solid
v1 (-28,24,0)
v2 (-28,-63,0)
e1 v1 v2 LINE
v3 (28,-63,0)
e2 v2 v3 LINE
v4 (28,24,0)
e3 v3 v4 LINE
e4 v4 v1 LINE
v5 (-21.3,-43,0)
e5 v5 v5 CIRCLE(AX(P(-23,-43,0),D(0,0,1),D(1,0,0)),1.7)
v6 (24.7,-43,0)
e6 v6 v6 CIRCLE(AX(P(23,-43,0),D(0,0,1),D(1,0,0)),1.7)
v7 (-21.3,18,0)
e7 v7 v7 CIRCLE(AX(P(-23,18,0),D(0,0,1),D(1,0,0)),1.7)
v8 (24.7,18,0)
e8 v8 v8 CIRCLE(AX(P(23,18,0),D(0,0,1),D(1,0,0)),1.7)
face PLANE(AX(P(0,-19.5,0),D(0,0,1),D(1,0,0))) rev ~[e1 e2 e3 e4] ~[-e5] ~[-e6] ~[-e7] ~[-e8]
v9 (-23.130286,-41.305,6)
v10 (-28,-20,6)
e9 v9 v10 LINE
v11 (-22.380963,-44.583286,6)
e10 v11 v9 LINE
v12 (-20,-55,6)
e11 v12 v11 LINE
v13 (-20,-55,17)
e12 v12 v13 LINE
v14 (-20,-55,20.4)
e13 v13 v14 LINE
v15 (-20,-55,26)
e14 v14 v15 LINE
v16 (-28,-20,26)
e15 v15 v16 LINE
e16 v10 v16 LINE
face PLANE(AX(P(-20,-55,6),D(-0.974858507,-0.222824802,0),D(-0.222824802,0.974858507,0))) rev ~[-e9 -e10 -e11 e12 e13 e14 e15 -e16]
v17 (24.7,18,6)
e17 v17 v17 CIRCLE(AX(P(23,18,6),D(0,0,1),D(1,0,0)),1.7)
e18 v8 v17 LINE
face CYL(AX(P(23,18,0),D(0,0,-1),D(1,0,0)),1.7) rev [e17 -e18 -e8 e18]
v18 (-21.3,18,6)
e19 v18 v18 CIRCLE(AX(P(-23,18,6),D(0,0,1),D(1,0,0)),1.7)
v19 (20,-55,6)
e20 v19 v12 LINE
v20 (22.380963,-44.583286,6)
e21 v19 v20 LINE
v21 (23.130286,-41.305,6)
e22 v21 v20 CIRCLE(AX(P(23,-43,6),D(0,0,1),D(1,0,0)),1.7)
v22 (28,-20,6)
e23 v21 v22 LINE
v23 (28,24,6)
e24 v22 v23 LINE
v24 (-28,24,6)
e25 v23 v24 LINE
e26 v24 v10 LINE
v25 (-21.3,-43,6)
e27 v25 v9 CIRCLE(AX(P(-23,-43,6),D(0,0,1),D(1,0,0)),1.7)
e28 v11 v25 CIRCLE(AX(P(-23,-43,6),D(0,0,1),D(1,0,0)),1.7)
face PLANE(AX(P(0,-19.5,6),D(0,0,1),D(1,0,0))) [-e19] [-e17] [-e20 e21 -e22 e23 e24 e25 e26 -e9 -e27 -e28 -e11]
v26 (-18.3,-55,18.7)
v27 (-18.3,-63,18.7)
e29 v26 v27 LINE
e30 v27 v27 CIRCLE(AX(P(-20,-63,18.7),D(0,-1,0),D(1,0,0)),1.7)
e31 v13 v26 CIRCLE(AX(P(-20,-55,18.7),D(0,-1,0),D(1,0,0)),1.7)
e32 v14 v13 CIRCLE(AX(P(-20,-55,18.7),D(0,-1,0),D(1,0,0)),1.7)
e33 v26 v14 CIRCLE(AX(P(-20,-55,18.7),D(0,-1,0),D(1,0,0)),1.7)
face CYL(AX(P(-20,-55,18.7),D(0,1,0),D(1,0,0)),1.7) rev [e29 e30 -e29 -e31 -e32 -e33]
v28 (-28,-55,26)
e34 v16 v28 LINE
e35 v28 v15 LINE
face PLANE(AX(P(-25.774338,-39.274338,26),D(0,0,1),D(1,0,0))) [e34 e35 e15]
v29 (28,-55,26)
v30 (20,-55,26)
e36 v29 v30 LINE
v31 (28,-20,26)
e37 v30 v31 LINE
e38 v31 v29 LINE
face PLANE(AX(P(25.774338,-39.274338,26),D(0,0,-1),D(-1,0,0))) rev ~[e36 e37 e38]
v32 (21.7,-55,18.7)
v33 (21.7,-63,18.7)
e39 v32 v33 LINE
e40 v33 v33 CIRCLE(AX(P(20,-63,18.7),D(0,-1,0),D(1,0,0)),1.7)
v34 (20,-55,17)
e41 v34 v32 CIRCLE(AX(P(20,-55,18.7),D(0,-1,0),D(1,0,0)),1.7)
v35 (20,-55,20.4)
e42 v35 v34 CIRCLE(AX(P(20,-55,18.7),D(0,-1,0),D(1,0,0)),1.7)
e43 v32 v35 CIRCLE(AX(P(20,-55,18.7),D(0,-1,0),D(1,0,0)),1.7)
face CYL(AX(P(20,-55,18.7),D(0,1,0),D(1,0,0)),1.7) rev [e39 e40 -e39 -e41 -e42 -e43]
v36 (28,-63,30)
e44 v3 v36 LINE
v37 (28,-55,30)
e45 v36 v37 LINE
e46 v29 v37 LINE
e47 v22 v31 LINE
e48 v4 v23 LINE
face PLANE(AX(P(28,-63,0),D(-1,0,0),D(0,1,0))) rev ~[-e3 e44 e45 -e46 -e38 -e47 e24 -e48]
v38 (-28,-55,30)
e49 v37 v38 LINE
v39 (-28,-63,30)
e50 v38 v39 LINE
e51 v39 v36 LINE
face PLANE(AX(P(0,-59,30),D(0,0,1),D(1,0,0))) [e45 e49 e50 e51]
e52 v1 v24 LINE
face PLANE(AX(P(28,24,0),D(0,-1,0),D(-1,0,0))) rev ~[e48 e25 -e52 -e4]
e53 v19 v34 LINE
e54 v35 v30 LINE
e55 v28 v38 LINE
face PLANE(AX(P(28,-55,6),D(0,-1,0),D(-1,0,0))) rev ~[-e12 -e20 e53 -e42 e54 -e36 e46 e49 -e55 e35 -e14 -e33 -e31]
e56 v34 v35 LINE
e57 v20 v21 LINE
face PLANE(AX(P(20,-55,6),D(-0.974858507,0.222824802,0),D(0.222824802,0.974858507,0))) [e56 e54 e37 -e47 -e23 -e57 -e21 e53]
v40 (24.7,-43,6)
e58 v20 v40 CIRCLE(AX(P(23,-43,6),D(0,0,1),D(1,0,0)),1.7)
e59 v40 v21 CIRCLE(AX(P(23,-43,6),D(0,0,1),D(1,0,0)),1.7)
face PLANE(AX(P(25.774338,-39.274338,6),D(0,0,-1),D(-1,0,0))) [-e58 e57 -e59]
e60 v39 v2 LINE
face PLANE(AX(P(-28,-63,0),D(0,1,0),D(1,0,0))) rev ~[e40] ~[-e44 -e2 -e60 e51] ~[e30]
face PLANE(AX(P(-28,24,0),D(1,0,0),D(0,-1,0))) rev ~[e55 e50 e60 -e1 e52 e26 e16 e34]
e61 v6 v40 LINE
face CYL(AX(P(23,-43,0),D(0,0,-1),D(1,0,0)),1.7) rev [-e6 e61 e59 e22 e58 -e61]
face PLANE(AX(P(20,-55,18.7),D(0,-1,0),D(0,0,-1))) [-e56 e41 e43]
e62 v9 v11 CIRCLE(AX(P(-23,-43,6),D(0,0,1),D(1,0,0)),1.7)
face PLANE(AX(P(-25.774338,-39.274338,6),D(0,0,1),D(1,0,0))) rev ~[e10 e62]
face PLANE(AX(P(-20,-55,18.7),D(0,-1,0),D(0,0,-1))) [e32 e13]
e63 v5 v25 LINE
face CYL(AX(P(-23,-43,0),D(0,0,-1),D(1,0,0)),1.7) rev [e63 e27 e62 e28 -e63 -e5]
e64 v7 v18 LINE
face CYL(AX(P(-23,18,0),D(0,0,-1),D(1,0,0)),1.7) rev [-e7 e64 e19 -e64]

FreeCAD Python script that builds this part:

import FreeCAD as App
import Part
import Sketcher


def add_polygon(sketch, points):
    """Adds a closed chain of lines whose ends are joined by coincident constraints."""
    first, n = sketch.GeometryCount, len(points)
    for a, b in zip(points, points[1:] + points[:1]):
        sketch.addGeometry(Part.LineSegment(App.Vector(*a, 0), App.Vector(*b, 0)), False)
    for i in range(n):
        sketch.addConstraint(Sketcher.Constraint("Coincident", first + i, 2, first + (i + 1) % n, 1))

doc = App.newDocument("Part")
body = doc.addObject("PartDesign::Body", "Body")

# Sketch on XY plane
sketch1 = body.newObject("Sketcher::SketchObject", "Sketch")
sketch1.AttachmentSupport = (doc.getObject("XY_Plane"), [""])
sketch1.MapMode = "FlatFace"
add_polygon(sketch1, [(-28, 24), (-28, -63), (28, -63), (28, 24)])  # lines 0-3
sketch1.addGeometry(Part.Circle(App.Vector(-23, -43, 0), App.Vector(0, 0, 1), 1.7), False)  # 4
sketch1.addGeometry(Part.Circle(App.Vector(23, -43, 0), App.Vector(0, 0, 1), 1.7), False)  # 5
sketch1.addGeometry(Part.Circle(App.Vector(-23, 18, 0), App.Vector(0, 0, 1), 1.7), False)  # 6
sketch1.addGeometry(Part.Circle(App.Vector(23, 18, 0), App.Vector(0, 0, 1), 1.7), False)  # 7
sketch1.addConstraint([
    Sketcher.Constraint("Vertical", 0),
    Sketcher.Constraint("Horizontal", 1),
    Sketcher.Constraint("Vertical", 2),
    Sketcher.Constraint("Horizontal", 3),
    Sketcher.Constraint("Equal", 4, 5),
    Sketcher.Constraint("Equal", 5, 6),
    Sketcher.Constraint("Equal", 6, 7),
    Sketcher.Constraint("Symmetric", 4, 3, 5, 3, -2),
    Sketcher.Constraint("Symmetric", 6, 3, 7, 3, -2),
    Sketcher.Constraint("Vertical", 4, 3, 6, 3),
    Sketcher.Constraint("Diameter", 4, 3.4),
    Sketcher.Constraint("DistanceX", 1, 1, 1, 2, 56.0),
    Sketcher.Constraint("DistanceY", 0, 2, 0, 1, 87.0),
    Sketcher.Constraint("DistanceX", 4, 3, -1, 1, 23.0),
    Sketcher.Constraint("DistanceY", 4, 3, -1, 1, 43.0),
    Sketcher.Constraint("DistanceY", -1, 1, 6, 3, 18.0),
    Sketcher.Constraint("DistanceX", 0, 2, -1, 1, 28.0),
    Sketcher.Constraint("DistanceY", 0, 2, -1, 1, 63.0),
])
pad1 = body.newObject("PartDesign::Pad", "Pad")
pad1.Profile = sketch1
pad1.Length = 6

# Sketch on XY plane
sketch2 = body.newObject("Sketcher::SketchObject", "Sketch001")
sketch2.AttachmentSupport = (doc.getObject("XY_Plane"), [""])
sketch2.MapMode = "FlatFace"
sketch2.AttachmentOffset = App.Placement(App.Vector(0, 0, 6), App.Rotation())
add_polygon(sketch2, [(-28, -55), (-28, -63), (28, -63), (28, -55)])  # lines 0-3
sketch2.addConstraint([
    Sketcher.Constraint("Vertical", 0),
    Sketcher.Constraint("Horizontal", 1),
    Sketcher.Constraint("Vertical", 2),
    Sketcher.Constraint("Horizontal", 3),
    Sketcher.Constraint("DistanceX", 1, 1, 1, 2, 56.0),
    Sketcher.Constraint("DistanceY", 0, 2, 0, 1, 8.0),
    Sketcher.Constraint("DistanceX", 0, 2, -1, 1, 28.0),
    Sketcher.Constraint("DistanceY", 0, 2, -1, 1, 63.0),
])
pad2 = body.newObject("PartDesign::Pad", "Pad001")
pad2.Profile = sketch2
pad2.Length = 24

# Sketch on XY plane
sketch3 = body.newObject("Sketcher::SketchObject", "Sketch002")
sketch3.AttachmentSupport = (doc.getObject("XY_Plane"), [""])
sketch3.MapMode = "FlatFace"
sketch3.AttachmentOffset = App.Placement(App.Vector(0, 0, 6), App.Rotation())
add_polygon(sketch3, [(-28, -20), (-28, -55), (-20, -55)])  # lines 0-2
sketch3.addConstraint([
    Sketcher.Constraint("Vertical", 0),
    Sketcher.Constraint("Horizontal", 1),
    Sketcher.Constraint("DistanceX", 1, 1, 1, 2, 8.0),
    Sketcher.Constraint("DistanceY", 0, 2, 0, 1, 35.0),
    Sketcher.Constraint("DistanceX", 0, 2, -1, 1, 28.0),
    Sketcher.Constraint("DistanceY", 0, 2, -1, 1, 55.0),
])
pad3 = body.newObject("PartDesign::Pad", "Pad002")
pad3.Profile = sketch3
pad3.Length = 20

# Sketch on XY plane
sketch4 = body.newObject("Sketcher::SketchObject", "Sketch003")
sketch4.AttachmentSupport = (doc.getObject("XY_Plane"), [""])
sketch4.MapMode = "FlatFace"
sketch4.AttachmentOffset = App.Placement(App.Vector(0, 0, 6), App.Rotation())
add_polygon(sketch4, [(20, -55), (28, -55), (28, -20)])  # lines 0-2
sketch4.addConstraint([
    Sketcher.Constraint("Horizontal", 0),
    Sketcher.Constraint("Vertical", 1),
    Sketcher.Constraint("DistanceX", 0, 1, 0, 2, 8.0),
    Sketcher.Constraint("DistanceY", 1, 1, 1, 2, 35.0),
    Sketcher.Constraint("DistanceX", -1, 1, 0, 2, 28.0),
    Sketcher.Constraint("DistanceY", 0, 2, -1, 1, 55.0),
])
pad4 = body.newObject("PartDesign::Pad", "Pad003")
pad4.Profile = sketch4
pad4.Length = 20

# Sketch on XZ plane
sketch5 = body.newObject("Sketcher::SketchObject", "Sketch004")
sketch5.AttachmentSupport = (doc.getObject("XZ_Plane"), [""])
sketch5.MapMode = "FlatFace"
sketch5.AttachmentOffset = App.Placement(App.Vector(0, 0, 55), App.Rotation())
sketch5.addGeometry([
    Part.Circle(App.Vector(-20, 18.7, 0), App.Vector(0, 0, 1), 1.7),
    Part.Circle(App.Vector(20, 18.7, 0), App.Vector(0, 0, 1), 1.7),
], False)
sketch5.addConstraint([
    Sketcher.Constraint("Equal", 0, 1),
    Sketcher.Constraint("Symmetric", 0, 3, 1, 3, -2),
    Sketcher.Constraint("Diameter", 0, 3.4),
    Sketcher.Constraint("DistanceX", 0, 3, -1, 1, 20.0),
    Sketcher.Constraint("DistanceY", -1, 1, 0, 3, 18.7),
])
pocket1 = body.newObject("PartDesign::Pocket", "Pocket")
pocket1.Profile = sketch5
pocket1.Length = 8
pocket1.Reversed = True

doc.recompute()
